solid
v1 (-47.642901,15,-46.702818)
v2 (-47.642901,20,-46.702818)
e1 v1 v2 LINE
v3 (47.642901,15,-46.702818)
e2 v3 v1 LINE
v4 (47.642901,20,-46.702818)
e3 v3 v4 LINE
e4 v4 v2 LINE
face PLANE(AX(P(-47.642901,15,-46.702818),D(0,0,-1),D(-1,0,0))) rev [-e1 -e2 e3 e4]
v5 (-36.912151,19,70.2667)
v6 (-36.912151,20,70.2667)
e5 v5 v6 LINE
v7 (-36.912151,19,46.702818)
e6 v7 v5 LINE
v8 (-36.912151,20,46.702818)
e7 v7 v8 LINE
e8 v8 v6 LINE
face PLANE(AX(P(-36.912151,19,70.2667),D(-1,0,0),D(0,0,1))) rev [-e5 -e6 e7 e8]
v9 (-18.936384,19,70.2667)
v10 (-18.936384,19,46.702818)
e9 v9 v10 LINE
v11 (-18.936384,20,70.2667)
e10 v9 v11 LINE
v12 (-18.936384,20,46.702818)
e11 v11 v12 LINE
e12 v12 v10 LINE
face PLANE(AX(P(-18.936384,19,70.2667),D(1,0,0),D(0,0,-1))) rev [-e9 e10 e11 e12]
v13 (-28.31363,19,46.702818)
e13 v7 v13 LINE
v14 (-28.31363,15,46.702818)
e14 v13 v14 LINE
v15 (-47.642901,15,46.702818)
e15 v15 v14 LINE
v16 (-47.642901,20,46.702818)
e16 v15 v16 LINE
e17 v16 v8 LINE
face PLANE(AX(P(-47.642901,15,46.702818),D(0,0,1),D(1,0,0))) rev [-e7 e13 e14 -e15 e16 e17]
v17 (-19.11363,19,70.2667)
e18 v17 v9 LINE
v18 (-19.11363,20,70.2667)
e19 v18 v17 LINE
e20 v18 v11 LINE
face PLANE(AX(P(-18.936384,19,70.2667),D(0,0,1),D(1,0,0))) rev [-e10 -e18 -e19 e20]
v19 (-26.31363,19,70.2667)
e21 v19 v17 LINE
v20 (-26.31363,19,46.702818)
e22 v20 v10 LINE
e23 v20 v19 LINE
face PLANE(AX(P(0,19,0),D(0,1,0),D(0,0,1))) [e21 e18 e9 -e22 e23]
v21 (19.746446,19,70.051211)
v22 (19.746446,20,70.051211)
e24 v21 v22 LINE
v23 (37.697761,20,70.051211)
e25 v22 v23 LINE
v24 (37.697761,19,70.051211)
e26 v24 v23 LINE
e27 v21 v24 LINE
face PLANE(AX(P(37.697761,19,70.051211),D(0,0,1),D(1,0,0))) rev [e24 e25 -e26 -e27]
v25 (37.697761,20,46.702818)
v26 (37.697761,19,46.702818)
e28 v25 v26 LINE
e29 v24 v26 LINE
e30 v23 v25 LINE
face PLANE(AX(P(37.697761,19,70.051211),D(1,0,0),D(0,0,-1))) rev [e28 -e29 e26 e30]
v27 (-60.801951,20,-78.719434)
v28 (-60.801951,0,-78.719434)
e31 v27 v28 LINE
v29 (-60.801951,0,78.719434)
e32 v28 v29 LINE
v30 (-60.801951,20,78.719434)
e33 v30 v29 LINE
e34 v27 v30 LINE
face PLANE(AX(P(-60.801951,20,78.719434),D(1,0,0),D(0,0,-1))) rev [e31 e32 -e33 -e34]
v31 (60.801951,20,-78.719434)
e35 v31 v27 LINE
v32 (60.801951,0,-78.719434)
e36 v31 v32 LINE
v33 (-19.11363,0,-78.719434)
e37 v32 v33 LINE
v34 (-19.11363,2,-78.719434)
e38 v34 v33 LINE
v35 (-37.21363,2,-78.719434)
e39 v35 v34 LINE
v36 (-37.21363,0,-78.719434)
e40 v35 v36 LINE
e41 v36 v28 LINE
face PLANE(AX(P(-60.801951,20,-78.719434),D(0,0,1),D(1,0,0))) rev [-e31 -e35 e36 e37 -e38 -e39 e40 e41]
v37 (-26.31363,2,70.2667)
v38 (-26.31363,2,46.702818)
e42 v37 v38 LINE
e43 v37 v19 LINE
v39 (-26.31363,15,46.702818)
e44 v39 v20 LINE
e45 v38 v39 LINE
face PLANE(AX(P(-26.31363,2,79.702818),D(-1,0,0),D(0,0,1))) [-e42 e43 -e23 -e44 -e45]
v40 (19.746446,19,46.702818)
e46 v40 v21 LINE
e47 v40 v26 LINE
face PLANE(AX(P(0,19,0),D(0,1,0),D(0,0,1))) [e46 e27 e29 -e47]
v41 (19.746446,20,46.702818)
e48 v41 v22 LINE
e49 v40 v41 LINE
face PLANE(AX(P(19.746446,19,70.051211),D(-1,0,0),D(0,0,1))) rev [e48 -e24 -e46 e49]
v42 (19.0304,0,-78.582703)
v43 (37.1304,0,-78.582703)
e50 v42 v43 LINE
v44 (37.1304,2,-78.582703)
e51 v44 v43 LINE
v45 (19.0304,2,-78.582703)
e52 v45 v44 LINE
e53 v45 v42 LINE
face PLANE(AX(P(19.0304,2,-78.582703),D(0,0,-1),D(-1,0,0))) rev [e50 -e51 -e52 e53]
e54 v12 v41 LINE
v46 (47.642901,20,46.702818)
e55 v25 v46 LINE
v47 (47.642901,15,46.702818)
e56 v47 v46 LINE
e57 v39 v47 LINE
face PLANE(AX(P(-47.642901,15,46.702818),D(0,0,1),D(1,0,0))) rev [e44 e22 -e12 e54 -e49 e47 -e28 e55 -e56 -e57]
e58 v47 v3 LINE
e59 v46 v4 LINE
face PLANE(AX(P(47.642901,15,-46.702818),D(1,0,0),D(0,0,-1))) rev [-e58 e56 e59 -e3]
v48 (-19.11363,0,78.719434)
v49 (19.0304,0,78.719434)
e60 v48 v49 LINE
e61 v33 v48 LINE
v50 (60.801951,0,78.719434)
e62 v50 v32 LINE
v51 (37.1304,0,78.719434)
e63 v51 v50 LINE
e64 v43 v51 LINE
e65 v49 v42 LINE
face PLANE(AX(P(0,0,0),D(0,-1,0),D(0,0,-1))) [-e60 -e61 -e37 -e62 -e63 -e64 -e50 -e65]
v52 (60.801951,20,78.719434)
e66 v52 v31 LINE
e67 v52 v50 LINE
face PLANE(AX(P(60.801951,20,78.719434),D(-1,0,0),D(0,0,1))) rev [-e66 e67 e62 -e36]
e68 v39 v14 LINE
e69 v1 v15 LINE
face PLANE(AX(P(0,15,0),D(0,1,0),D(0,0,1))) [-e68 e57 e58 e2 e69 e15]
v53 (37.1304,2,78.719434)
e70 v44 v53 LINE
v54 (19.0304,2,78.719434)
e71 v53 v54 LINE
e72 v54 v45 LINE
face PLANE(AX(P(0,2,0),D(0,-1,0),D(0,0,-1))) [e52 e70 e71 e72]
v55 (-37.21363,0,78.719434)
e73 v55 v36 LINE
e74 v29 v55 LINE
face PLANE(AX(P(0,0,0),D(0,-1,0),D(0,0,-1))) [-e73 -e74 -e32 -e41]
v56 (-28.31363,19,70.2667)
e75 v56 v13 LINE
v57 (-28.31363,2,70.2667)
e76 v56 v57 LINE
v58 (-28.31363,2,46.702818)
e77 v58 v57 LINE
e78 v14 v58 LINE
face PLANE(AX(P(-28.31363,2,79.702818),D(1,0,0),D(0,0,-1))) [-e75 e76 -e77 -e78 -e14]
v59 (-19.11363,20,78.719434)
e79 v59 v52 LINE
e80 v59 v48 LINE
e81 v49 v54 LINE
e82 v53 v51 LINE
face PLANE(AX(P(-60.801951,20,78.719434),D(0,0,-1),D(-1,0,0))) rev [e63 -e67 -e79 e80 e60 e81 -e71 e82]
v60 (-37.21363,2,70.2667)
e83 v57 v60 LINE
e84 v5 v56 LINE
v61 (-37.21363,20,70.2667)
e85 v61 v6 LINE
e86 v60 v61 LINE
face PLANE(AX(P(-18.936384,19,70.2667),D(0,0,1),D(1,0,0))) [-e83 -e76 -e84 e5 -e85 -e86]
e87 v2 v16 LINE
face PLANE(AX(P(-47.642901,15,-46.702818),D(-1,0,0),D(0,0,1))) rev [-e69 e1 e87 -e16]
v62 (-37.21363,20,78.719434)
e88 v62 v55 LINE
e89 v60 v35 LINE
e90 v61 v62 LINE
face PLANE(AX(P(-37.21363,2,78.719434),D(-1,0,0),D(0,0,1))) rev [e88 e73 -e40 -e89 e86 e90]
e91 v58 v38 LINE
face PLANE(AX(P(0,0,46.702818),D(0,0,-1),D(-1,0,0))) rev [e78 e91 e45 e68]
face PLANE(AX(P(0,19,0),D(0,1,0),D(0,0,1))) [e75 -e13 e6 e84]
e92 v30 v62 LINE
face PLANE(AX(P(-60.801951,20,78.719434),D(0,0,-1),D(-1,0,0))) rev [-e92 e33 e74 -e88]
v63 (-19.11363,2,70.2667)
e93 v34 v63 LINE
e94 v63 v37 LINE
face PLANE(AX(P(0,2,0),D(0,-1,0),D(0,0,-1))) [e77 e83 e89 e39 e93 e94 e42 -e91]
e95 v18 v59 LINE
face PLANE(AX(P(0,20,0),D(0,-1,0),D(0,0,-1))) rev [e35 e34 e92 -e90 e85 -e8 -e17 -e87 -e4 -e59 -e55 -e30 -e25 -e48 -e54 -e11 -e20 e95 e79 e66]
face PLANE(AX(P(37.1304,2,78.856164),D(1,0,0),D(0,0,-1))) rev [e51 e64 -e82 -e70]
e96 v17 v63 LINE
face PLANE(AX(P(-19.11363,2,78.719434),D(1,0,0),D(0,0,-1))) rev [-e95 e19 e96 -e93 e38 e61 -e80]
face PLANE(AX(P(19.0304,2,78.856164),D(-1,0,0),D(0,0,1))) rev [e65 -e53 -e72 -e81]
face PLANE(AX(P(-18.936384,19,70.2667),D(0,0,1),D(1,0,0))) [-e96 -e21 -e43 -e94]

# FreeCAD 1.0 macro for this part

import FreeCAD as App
import Part
import Sketcher
from FreeCAD import Vector


def add_polygon(sketch, points):
    """Adds a closed chain of lines whose ends are joined by coincident constraints."""
    first, n = sketch.GeometryCount, len(points)
    for a, b in zip(points, points[1:] + points[:1]):
        sketch.addGeometry(Part.LineSegment(App.Vector(*a, 0), App.Vector(*b, 0)), False)
    for i in range(n):
        sketch.addConstraint(Sketcher.Constraint("Coincident", first + i, 2, first + (i + 1) % n, 1))

doc = App.newDocument("Part")
body = doc.addObject("PartDesign::Body", "Body")

# Sketch on XZ plane
sketch1 = doc.addObject("Sketcher::SketchObject", "Sketch")
body.addObject(sketch1)
sketch1.AttachmentSupport = (doc.XZ_Plane, [""])
sketch1.MapMode = "FlatFace"
add_polygon(sketch1, [(-60.801951, -78.719434), (-60.801951, 78.719434), (60.801951, 78.719434), (60.801951, -78.719434)])  # lines 0-3
sketch1.addConstraint([
    Sketcher.Constraint("Vertical", 0),
    Sketcher.Constraint("Horizontal", 1),
    Sketcher.Constraint("Vertical", 2),
    Sketcher.Constraint("Horizontal", 3),
    Sketcher.Constraint("Symmetric", 0, 2, 2, 2, -1, 1),
    Sketcher.Constraint("DistanceX", 1, 1, 1, 2, 121.603902),
    Sketcher.Constraint("DistanceY", 0, 1, 0, 2, 157.438868),
])
pad1 = doc.addObject("PartDesign::Pad", "Pad")
body.addObject(pad1)
pad1.Profile = sketch1
pad1.Length = 20
pad1.Reversed = True

# Sketch on XZ plane
sketch2 = doc.addObject("Sketcher::SketchObject", "Sketch001")
body.addObject(sketch2)
sketch2.AttachmentSupport = (doc.XZ_Plane, [""])
sketch2.MapMode = "FlatFace"
sketch2.AttachmentOffset = App.Placement(Vector(0, 0, -20), App.Rotation())
add_polygon(sketch2, [(-36.912151, 46.698472), (-36.912151, 70.2667), (-18.936384, 70.2667), (-18.936384, 46.698472)])  # lines 0-3
add_polygon(sketch2, [(19.746446, 46.515042), (19.746446, 70.051211), (37.697761, 70.051211), (37.697761, 46.515042)])  # lines 4-7
sketch2.addConstraint([
    Sketcher.Constraint("Vertical", 0),
    Sketcher.Constraint("Horizontal", 1),
    Sketcher.Constraint("Vertical", 2),
    Sketcher.Constraint("Horizontal", 3),
    Sketcher.Constraint("Vertical", 4),
    Sketcher.Constraint("Horizontal", 5),
    Sketcher.Constraint("Vertical", 6),
    Sketcher.Constraint("Horizontal", 7),
    Sketcher.Constraint("DistanceY", 0, 1, 0, 2, 23.568228),
    Sketcher.Constraint("DistanceY", 4, 1, 4, 2, 23.536168),
    Sketcher.Constraint("DistanceY", -1, 1, 0, 2, 70.2667),
    Sketcher.Constraint("DistanceX", 1, 1, 1, 2, 17.975767),
    Sketcher.Constraint("DistanceX", 5, 1, 5, 2, 17.951315),
    Sketcher.Constraint("DistanceX", 0, 2, -1, 1, 36.912151),
    Sketcher.Constraint("DistanceY", -1, 1, 4, 2, 70.051211),
    Sketcher.Constraint("DistanceX", -1, 1, 5, 2, 37.697761),
])
pocket1 = doc.addObject("PartDesign::Pocket", "Pocket")
body.addObject(pocket1)
pocket1.Profile = sketch2
pocket1.Length = 1
pocket1.Reversed = True

# Sketch on XZ plane
sketch3 = doc.addObject("Sketcher::SketchObject", "Sketch002")
body.addObject(sketch3)
sketch3.AttachmentSupport = (doc.XZ_Plane, [""])
sketch3.MapMode = "FlatFace"
sketch3.AttachmentOffset = App.Placement(Vector(0, 0, -20), App.Rotation())
add_polygon(sketch3, [(-47.642901, -46.702818), (-47.642901, 46.702818), (47.642901, 46.702818), (47.642901, -46.702818)])  # lines 0-3
sketch3.addConstraint([
    Sketcher.Constraint("Vertical", 0),
    Sketcher.Constraint("Horizontal", 1),
    Sketcher.Constraint("Vertical", 2),
    Sketcher.Constraint("Horizontal", 3),
    Sketcher.Constraint("Symmetric", 0, 2, 2, 2, -1, 1),
    Sketcher.Constraint("DistanceX", 0, 2, -1, 1, 47.642901),
    Sketcher.Constraint("DistanceY", 0, 1, 0, 2, 93.405636),
])
pocket2 = doc.addObject("PartDesign::Pocket", "Pocket001")
body.addObject(pocket2)
pocket2.Profile = sketch3
pocket2.Length = 5
pocket2.Reversed = True

# Sketch on XZ plane
sketch4 = doc.addObject("Sketcher::SketchObject", "Sketch003")
body.addObject(sketch4)
sketch4.AttachmentSupport = (doc.XZ_Plane, [""])
sketch4.MapMode = "FlatFace"
add_polygon(sketch4, [(-37.21363, 78.719434), (-37.21363, -78.719434), (-19.11363, -78.719434), (-19.11363, 78.719434)])  # lines 0-3
add_polygon(sketch4, [(19.0304, 78.856164), (19.0304, -78.582703), (37.1304, -78.582703), (37.1304, 78.856164)])  # lines 4-7
sketch4.addConstraint([
    Sketcher.Constraint("Vertical", 0),
    Sketcher.Constraint("Horizontal", 1),
    Sketcher.Constraint("Vertical", 2),
    Sketcher.Constraint("Horizontal", 3),
    Sketcher.Constraint("Vertical", 4),
    Sketcher.Constraint("Horizontal", 5),
    Sketcher.Constraint("Vertical", 6),
    Sketcher.Constraint("Horizontal", 7),
    Sketcher.Constraint("Equal", 3, 5),
    Sketcher.Constraint("Equal", 2, 4),
    Sketcher.Constraint("DistanceX", 1, 1, 1, 2, 18.1),
    Sketcher.Constraint("DistanceX", -1, 1, 4, 2, 19.0304),
    Sketcher.Constraint("DistanceY", 1, 2, 6, 2, 157.575598),
    Sketcher.Constraint("DistanceY", 0, 2, 0, 1, 157.438868),
    Sketcher.Constraint("DistanceX", 0, 2, -1, 1, 37.21363),
    Sketcher.Constraint("DistanceY", 0, 2, -1, 1, 78.719434),
])
pocket3 = doc.addObject("PartDesign::Pocket", "Pocket002")
body.addObject(pocket3)
pocket3.Profile = sketch4
pocket3.Length = 2

# Sketch on XY plane
sketch5 = doc.addObject("Sketcher::SketchObject", "Sketch004")
body.addObject(sketch5)
sketch5.AttachmentSupport = (doc.XY_Plane, [""])
sketch5.MapMode = "FlatFace"
sketch5.AttachmentOffset = App.Placement(Vector(0, 0, 46.702818), App.Rotation())
add_polygon(sketch5, [(-28.31363, 20), (-28.31363, 2), (-26.31363, 2), (-26.31363, 20)])  # lines 0-3
sketch5.addConstraint([
    Sketcher.Constraint("Vertical", 0),
    Sketcher.Constraint("Horizontal", 1),
    Sketcher.Constraint("Vertical", 2),
    Sketcher.Constraint("Horizontal", 3),
    Sketcher.Constraint("DistanceX", 1, 1, 1, 2, 2.0),
    Sketcher.Constraint("DistanceY", 0, 2, 0, 1, 18.0),
    Sketcher.Constraint("DistanceY", -1, 1, 0, 2, 2.0),
    Sketcher.Constraint("DistanceX", 0, 2, -1, 1, 28.31363),
])
pocket4 = doc.addObject("PartDesign::Pocket", "Pocket003")
body.addObject(pocket4)
pocket4.Profile = sketch5
pocket4.Length = 33
pocket4.Reversed = True

# Sketch on XY plane
sketch6 = doc.addObject("Sketcher::SketchObject", "Sketch005")
body.addObject(sketch6)
sketch6.AttachmentSupport = (doc.XY_Plane, [""])
sketch6.MapMode = "FlatFace"
sketch6.AttachmentOffset = App.Placement(Vector(0, 0, 78.719434), App.Rotation())
add_polygon(sketch6, [(-37.21363, 20), (-37.21363, 2), (-19.11363, 2), (-19.11363, 20)])  # lines 0-3
sketch6.addConstraint([
    Sketcher.Constraint("Vertical", 0),
    Sketcher.Constraint("Horizontal", 1),
    Sketcher.Constraint("Vertical", 2),
    Sketcher.Constraint("Horizontal", 3),
    Sketcher.Constraint("DistanceY", 0, 2, 0, 1, 18.0),
    Sketcher.Constraint("DistanceX", 1, 1, 1, 2, 18.1),
    Sketcher.Constraint("DistanceY", -1, 1, 0, 2, 2.0),
    Sketcher.Constraint("DistanceX", 0, 2, -1, 1, 37.21363),
])
pocket5 = doc.addObject("PartDesign::Pocket", "Pocket004")
body.addObject(pocket5)
pocket5.Profile = sketch6
pocket5.Length = 8.452734

doc.recompute()
